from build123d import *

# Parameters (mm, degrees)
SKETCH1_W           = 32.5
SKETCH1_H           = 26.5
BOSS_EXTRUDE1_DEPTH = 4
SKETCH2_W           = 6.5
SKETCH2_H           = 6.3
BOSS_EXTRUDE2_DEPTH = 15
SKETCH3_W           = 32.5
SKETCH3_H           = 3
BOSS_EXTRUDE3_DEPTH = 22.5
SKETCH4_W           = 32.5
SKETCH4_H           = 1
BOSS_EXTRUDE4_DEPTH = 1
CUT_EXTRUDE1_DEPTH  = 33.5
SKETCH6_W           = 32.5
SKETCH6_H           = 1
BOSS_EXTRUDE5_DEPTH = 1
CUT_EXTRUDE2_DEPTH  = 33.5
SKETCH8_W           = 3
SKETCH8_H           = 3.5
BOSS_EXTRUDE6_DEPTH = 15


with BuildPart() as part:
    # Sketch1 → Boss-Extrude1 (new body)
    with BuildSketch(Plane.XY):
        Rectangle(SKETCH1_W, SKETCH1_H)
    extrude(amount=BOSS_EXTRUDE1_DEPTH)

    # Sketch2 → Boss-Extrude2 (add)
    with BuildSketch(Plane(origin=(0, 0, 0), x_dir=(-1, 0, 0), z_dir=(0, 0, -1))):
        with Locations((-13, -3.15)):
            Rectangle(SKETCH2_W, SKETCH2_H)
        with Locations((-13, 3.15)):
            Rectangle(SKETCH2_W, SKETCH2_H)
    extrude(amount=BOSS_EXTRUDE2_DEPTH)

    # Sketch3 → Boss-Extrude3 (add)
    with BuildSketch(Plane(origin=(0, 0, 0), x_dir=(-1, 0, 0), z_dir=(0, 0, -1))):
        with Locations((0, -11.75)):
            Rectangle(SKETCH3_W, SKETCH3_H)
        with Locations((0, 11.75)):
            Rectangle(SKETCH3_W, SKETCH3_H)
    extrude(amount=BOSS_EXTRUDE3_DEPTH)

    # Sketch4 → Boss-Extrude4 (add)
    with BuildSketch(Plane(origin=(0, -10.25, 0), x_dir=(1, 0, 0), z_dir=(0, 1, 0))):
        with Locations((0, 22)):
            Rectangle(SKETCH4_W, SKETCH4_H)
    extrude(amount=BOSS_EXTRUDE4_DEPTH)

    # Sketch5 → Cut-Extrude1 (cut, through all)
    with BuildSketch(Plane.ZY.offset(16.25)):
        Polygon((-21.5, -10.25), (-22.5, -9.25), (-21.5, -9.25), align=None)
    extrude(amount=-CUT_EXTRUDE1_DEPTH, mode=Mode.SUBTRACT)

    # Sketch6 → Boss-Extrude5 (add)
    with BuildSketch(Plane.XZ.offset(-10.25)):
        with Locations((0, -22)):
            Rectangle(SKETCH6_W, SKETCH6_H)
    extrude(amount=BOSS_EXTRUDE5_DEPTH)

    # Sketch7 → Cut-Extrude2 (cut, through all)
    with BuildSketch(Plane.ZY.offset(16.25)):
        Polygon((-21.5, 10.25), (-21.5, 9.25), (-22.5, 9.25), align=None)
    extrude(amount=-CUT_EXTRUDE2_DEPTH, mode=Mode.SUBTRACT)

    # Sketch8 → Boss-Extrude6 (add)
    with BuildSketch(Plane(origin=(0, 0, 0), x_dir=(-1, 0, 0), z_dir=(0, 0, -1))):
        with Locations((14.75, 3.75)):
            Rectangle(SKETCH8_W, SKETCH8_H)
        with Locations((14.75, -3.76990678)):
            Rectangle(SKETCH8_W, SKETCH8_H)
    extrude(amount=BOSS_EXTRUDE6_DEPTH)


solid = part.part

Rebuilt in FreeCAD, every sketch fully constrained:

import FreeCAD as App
import Part
import Sketcher
Q = App.Units.Quantity

doc = App.newDocument("Part")
body = doc.addObject("PartDesign::Body", "Body")

# Sketch on XY plane
sketch1 = body.newObject("Sketcher::SketchObject", "Sketch")
sketch1.AttachmentSupport = (doc.getObject("XY_Plane"), [""])
sketch1.MapMode = "FlatFace"
sketch1.addGeometry([
    Part.LineSegment(App.Vector(-16, 13, 0), App.Vector(-16, -13, 0)),
    Part.LineSegment(App.Vector(-16, -13, 0), App.Vector(16, -13, 0)),
    Part.LineSegment(App.Vector(16, -13, 0), App.Vector(16, 13, 0)),
    Part.LineSegment(App.Vector(16, 13, 0), App.Vector(-16, 13, 0)),
], False)
sketch1.addConstraint([
    Sketcher.Constraint("Coincident", 0, 2, 1, 1),
    Sketcher.Constraint("Coincident", 1, 2, 2, 1),
    Sketcher.Constraint("Coincident", 2, 2, 3, 1),
    Sketcher.Constraint("Coincident", 3, 2, 0, 1),
    Sketcher.Constraint("Vertical", 0),
    Sketcher.Constraint("Horizontal", 1),
    Sketcher.Constraint("Vertical", 2),
    Sketcher.Constraint("Horizontal", 3),
    Sketcher.Constraint("Symmetric", 0, 2, 2, 2, -1, 1),
    Sketcher.Constraint("DistanceX", 1, 1, 1, 2, Q("32.5 mm")),
    Sketcher.Constraint("DistanceY", 0, 2, 0, 1, Q("26.5 mm")),
])
pad1 = body.newObject("PartDesign::Pad", "Pad")
pad1.Profile = sketch1
pad1.Length = 4

# Sketch on XY plane
sketch2 = body.newObject("Sketcher::SketchObject", "Sketch001")
sketch2.AttachmentSupport = (doc.getObject("XY_Plane"), [""])
sketch2.MapMode = "FlatFace"
sketch2.addGeometry([
    Part.LineSegment(App.Vector(16, -6, 0), App.Vector(10, -6, 0)),
    Part.LineSegment(App.Vector(10, -6, 0), App.Vector(10, 6, 0)),
    Part.LineSegment(App.Vector(10, 6, 0), App.Vector(16, 6, 0)),
    Part.LineSegment(App.Vector(16, 6, 0), App.Vector(16, -6, 0)),
], False)
sketch2.addConstraint([
    Sketcher.Constraint("Coincident", 0, 2, 1, 1),
    Sketcher.Constraint("Coincident", 1, 2, 2, 1),
    Sketcher.Constraint("Coincident", 2, 2, 3, 1),
    Sketcher.Constraint("Coincident", 3, 2, 0, 1),
    Sketcher.Constraint("Horizontal", 0),
    Sketcher.Constraint("Vertical", 1),
    Sketcher.Constraint("Horizontal", 2),
    Sketcher.Constraint("Vertical", 3),
    Sketcher.Constraint("DistanceX", 0, 2, 0, 1, Q("6.5 mm")),
    Sketcher.Constraint("DistanceY", 1, 1, 1, 2, Q("12.6 mm")),
    Sketcher.Constraint("DistanceY", 0, 2, -1, 1, Q("6.3 mm")),
    Sketcher.Constraint("DistanceX", -1, 1, 0, 2, Q("9.75 mm")),
])
pad2 = body.newObject("PartDesign::Pad", "Pad001")
pad2.Profile = sketch2
pad2.Length = 15
pad2.Reversed = True

# Sketch on XY plane
sketch3 = body.newObject("Sketcher::SketchObject", "Sketch002")
sketch3.AttachmentSupport = (doc.getObject("XY_Plane"), [""])
sketch3.MapMode = "FlatFace"
sketch3.addGeometry([
    Part.LineSegment(App.Vector(16.2, -10.2, 0), App.Vector(16.2, -13.2, 0)),  # 0
    Part.LineSegment(App.Vector(16.2, -13.2, 0), App.Vector(-16.2, -13.2, 0)),  # 1
    Part.LineSegment(App.Vector(-16.2, -13.2, 0), App.Vector(-16.2, -10.2, 0)),  # 2
    Part.LineSegment(App.Vector(-16.2, -10.2, 0), App.Vector(16.2, -10.2, 0)),  # 3
    Part.LineSegment(App.Vector(16.2, 13.2, 0), App.Vector(16.2, 10.2, 0)),  # 4
    Part.LineSegment(App.Vector(16.2, 10.2, 0), App.Vector(-16.2, 10.2, 0)),  # 5
    Part.LineSegment(App.Vector(-16.2, 10.2, 0), App.Vector(-16.2, 13.2, 0)),  # 6
    Part.LineSegment(App.Vector(-16.2, 13.2, 0), App.Vector(16.2, 13.2, 0)),  # 7
], False)
sketch3.addConstraint([
    Sketcher.Constraint("Coincident", 0, 2, 1, 1),
    Sketcher.Constraint("Coincident", 1, 2, 2, 1),
    Sketcher.Constraint("Coincident", 2, 2, 3, 1),
    Sketcher.Constraint("Coincident", 3, 2, 0, 1),
    Sketcher.Constraint("Coincident", 4, 2, 5, 1),
    Sketcher.Constraint("Coincident", 5, 2, 6, 1),
    Sketcher.Constraint("Coincident", 6, 2, 7, 1),
    Sketcher.Constraint("Coincident", 7, 2, 4, 1),
    Sketcher.Constraint("Vertical", 0),
    Sketcher.Constraint("Horizontal", 1),
    Sketcher.Constraint("Vertical", 2),
    Sketcher.Constraint("Horizontal", 3),
    Sketcher.Constraint("Vertical", 4),
    Sketcher.Constraint("Horizontal", 5),
    Sketcher.Constraint("Vertical", 6),
    Sketcher.Constraint("Horizontal", 7),
    Sketcher.Constraint("Symmetric", 2, 2, 4, 2, -1, 1),
    Sketcher.Constraint("Symmetric", 0, 2, 6, 2, -1, 1),
    Sketcher.Constraint("Vertical", 3, 2, 4, 2),
    Sketcher.Constraint("DistanceY", 0, 2, 0, 1, Q("3 mm")),
    Sketcher.Constraint("DistanceX", 1, 2, 1, 1, Q("32.5 mm")),
    Sketcher.Constraint("DistanceY", 3, 2, 4, 2, Q("20.5 mm")),
])
pad3 = body.newObject("PartDesign::Pad", "Pad002")
pad3.Profile = sketch3
pad3.Length = 22.5
pad3.Reversed = True

# Sketch on XZ plane
sketch4 = body.newObject("Sketcher::SketchObject", "Sketch003")
sketch4.AttachmentSupport = (doc.getObject("XZ_Plane"), [""])
sketch4.MapMode = "FlatFace"
sketch4.AttachmentOffset = App.Placement(App.Vector(0, 0, 10.25), App.Rotation())
sketch4.addGeometry([
    Part.LineSegment(App.Vector(-16.2, -22.5, 0), App.Vector(-16.2, -21.5, 0)),
    Part.LineSegment(App.Vector(-16.2, -21.5, 0), App.Vector(16.2, -21.5, 0)),
    Part.LineSegment(App.Vector(16.2, -21.5, 0), App.Vector(16.2, -22.5, 0)),
    Part.LineSegment(App.Vector(16.2, -22.5, 0), App.Vector(-16.2, -22.5, 0)),
], False)
sketch4.addConstraint([
    Sketcher.Constraint("Coincident", 0, 2, 1, 1),
    Sketcher.Constraint("Coincident", 1, 2, 2, 1),
    Sketcher.Constraint("Coincident", 2, 2, 3, 1),
    Sketcher.Constraint("Coincident", 3, 2, 0, 1),
    Sketcher.Constraint("Vertical", 0),
    Sketcher.Constraint("Horizontal", 1),
    Sketcher.Constraint("Vertical", 2),
    Sketcher.Constraint("Horizontal", 3),
    Sketcher.Constraint("DistanceY", 0, 1, 0, 2, Q("1 mm")),
    Sketcher.Constraint("DistanceX", 1, 1, 1, 2, Q("32.5 mm")),
    Sketcher.Constraint("DistanceY", 0, 2, -1, 1, Q("21.5 mm")),
    Sketcher.Constraint("DistanceX", 0, 2, -1, 1, Q("16.25 mm")),
])
pad4 = body.newObject("PartDesign::Pad", "Pad003")
pad4.Profile = sketch4
pad4.Length = 1
pad4.Reversed = True

# Sketch on YZ plane
sketch5 = body.newObject("Sketcher::SketchObject", "Sketch004")
sketch5.AttachmentSupport = (doc.getObject("YZ_Plane"), [""])
sketch5.MapMode = "FlatFace"
sketch5.AttachmentOffset = App.Placement(App.Vector(0, 0, -16.25), App.Rotation())
sketch5.addGeometry([
    Part.LineSegment(App.Vector(-9.2, -22.5, 0), App.Vector(-10.2, -21.5, 0)),
    Part.LineSegment(App.Vector(-10.2, -21.5, 0), App.Vector(-9.2, -21.5, 0)),
    Part.LineSegment(App.Vector(-9.2, -21.5, 0), App.Vector(-9.2, -22.5, 0)),
], False)
sketch5.addConstraint([
    Sketcher.Constraint("Coincident", 0, 2, 1, 1),
    Sketcher.Constraint("Coincident", 1, 2, 2, 1),
    Sketcher.Constraint("Coincident", 2, 2, 0, 1),
    Sketcher.Constraint("Horizontal", 1),
    Sketcher.Constraint("Vertical", 2),
    Sketcher.Constraint("Equal", 1, 2),
    Sketcher.Constraint("DistanceX", 1, 1, 1, 2, Q("1 mm")),
    Sketcher.Constraint("DistanceY", 0, 2, -1, 1, Q("21.5 mm")),
    Sketcher.Constraint("DistanceX", 0, 2, -1, 1, Q("10.25 mm")),
])
pocket1 = body.newObject("PartDesign::Pocket", "Pocket")
pocket1.Profile = sketch5
pocket1.Type = "ThroughAll"
pocket1.Reversed = True

# Sketch on XZ plane
sketch6 = body.newObject("Sketcher::SketchObject", "Sketch005")
sketch6.AttachmentSupport = (doc.getObject("XZ_Plane"), [""])
sketch6.MapMode = "FlatFace"
sketch6.AttachmentOffset = App.Placement(App.Vector(0, 0, -10.25), App.Rotation())
sketch6.addGeometry([
    Part.LineSegment(App.Vector(-16.2, -21.5, 0), App.Vector(-16.2, -22.5, 0)),
    Part.LineSegment(App.Vector(-16.2, -22.5, 0), App.Vector(16.2, -22.5, 0)),
    Part.LineSegment(App.Vector(16.2, -22.5, 0), App.Vector(16.2, -21.5, 0)),
    Part.LineSegment(App.Vector(16.2, -21.5, 0), App.Vector(-16.2, -21.5, 0)),
], False)
sketch6.addConstraint([
    Sketcher.Constraint("Coincident", 0, 2, 1, 1),
    Sketcher.Constraint("Coincident", 1, 2, 2, 1),
    Sketcher.Constraint("Coincident", 2, 2, 3, 1),
    Sketcher.Constraint("Coincident", 3, 2, 0, 1),
    Sketcher.Constraint("Vertical", 0),
    Sketcher.Constraint("Horizontal", 1),
    Sketcher.Constraint("Vertical", 2),
    Sketcher.Constraint("Horizontal", 3),
    Sketcher.Constraint("DistanceY", 0, 2, 0, 1, Q("1 mm")),
    Sketcher.Constraint("DistanceX", 1, 1, 1, 2, Q("32.5 mm")),
    Sketcher.Constraint("DistanceY", 0, 2, -1, 1, Q("22.5 mm")),
    Sketcher.Constraint("DistanceX", 0, 2, -1, 1, Q("16.25 mm")),
])
pad5 = body.newObject("PartDesign::Pad", "Pad004")
pad5.Profile = sketch6
pad5.Length = 1

# Sketch on YZ plane
sketch7 = body.newObject("Sketcher::SketchObject", "Sketch006")
sketch7.AttachmentSupport = (doc.getObject("YZ_Plane"), [""])
sketch7.MapMode = "FlatFace"
sketch7.AttachmentOffset = App.Placement(App.Vector(0, 0, -16.25), App.Rotation())
sketch7.addGeometry([
    Part.LineSegment(App.Vector(9.2, -21.5, 0), App.Vector(10.2, -21.5, 0)),
    Part.LineSegment(App.Vector(10.2, -21.5, 0), App.Vector(9.2, -22.5, 0)),
    Part.LineSegment(App.Vector(9.2, -22.5, 0), App.Vector(9.2, -21.5, 0)),
], False)
sketch7.addConstraint([
    Sketcher.Constraint("Coincident", 0, 2, 1, 1),
    Sketcher.Constraint("Coincident", 1, 2, 2, 1),
    Sketcher.Constraint("Coincident", 2, 2, 0, 1),
    Sketcher.Constraint("Horizontal", 0),
    Sketcher.Constraint("Vertical", 2),
    Sketcher.Constraint("Equal", 0, 2),
    Sketcher.Constraint("DistanceX", 0, 1, 0, 2, Q("1 mm")),
    Sketcher.Constraint("DistanceY", 0, 2, -1, 1, Q("21.5 mm")),
    Sketcher.Constraint("DistanceX", -1, 1, 0, 2, Q("10.25 mm")),
])
pocket2 = body.newObject("PartDesign::Pocket", "Pocket001")
pocket2.Profile = sketch7
pocket2.Type = "ThroughAll"
pocket2.Reversed = True

# Sketch on XY plane
sketch8 = body.newObject("Sketcher::SketchObject", "Sketch007")
sketch8.AttachmentSupport = (doc.getObject("XY_Plane"), [""])
sketch8.MapMode = "FlatFace"
sketch8.addGeometry([
    Part.LineSegment(App.Vector(-13.2, 5.5, 0), App.Vector(-13.2, 2, 0)),  # 0
    Part.LineSegment(App.Vector(-13.2, 2, 0), App.Vector(-16.2, 2, 0)),  # 1
    Part.LineSegment(App.Vector(-16.2, 2, 0), App.Vector(-16.2, 5.5, 0)),  # 2
    Part.LineSegment(App.Vector(-16.2, 5.5, 0), App.Vector(-13.2, 5.5, 0)),  # 3
    Part.LineSegment(App.Vector(-13.2, -2, 0), App.Vector(-13.2, -5.5, 0)),  # 4
    Part.LineSegment(App.Vector(-13.2, -5.5, 0), App.Vector(-16.2, -5.5, 0)),  # 5
    Part.LineSegment(App.Vector(-16.2, -5.5, 0), App.Vector(-16.2, -2, 0)),  # 6
    Part.LineSegment(App.Vector(-16.2, -2, 0), App.Vector(-13.2, -2, 0)),  # 7
], False)
sketch8.addConstraint([
    Sketcher.Constraint("Coincident", 0, 2, 1, 1),
    Sketcher.Constraint("Coincident", 1, 2, 2, 1),
    Sketcher.Constraint("Coincident", 2, 2, 3, 1),
    Sketcher.Constraint("Coincident", 3, 2, 0, 1),
    Sketcher.Constraint("Coincident", 4, 2, 5, 1),
    Sketcher.Constraint("Coincident", 5, 2, 6, 1),
    Sketcher.Constraint("Coincident", 6, 2, 7, 1),
    Sketcher.Constraint("Coincident", 7, 2, 4, 1),
    Sketcher.Constraint("Vertical", 0),
    Sketcher.Constraint("Horizontal", 1),
    Sketcher.Constraint("Vertical", 2),
    Sketcher.Constraint("Horizontal", 3),
    Sketcher.Constraint("Vertical", 4),
    Sketcher.Constraint("Horizontal", 5),
    Sketcher.Constraint("Vertical", 6),
    Sketcher.Constraint("Horizontal", 7),
    Sketcher.Constraint("Vertical", 3, 2, 4, 2),
    Sketcher.Constraint("Vertical", 2, 2, 5, 2),
    Sketcher.Constraint("Equal", 2, 4),
    Sketcher.Constraint("DistanceX", 1, 2, 1, 1, Q("3 mm")),
    Sketcher.Constraint("DistanceY", 0, 2, 0, 1, Q("3.5 mm")),
    Sketcher.Constraint("DistanceY", -1, 1, 0, 2, Q("2 mm")),
    Sketcher.Constraint("DistanceX", 0, 2, -1, 1, Q("13.25 mm")),
    Sketcher.Constraint("DistanceY", 4, 2, -1, 1, Q("5.519907 mm")),
])
pad6 = body.newObject("PartDesign::Pad", "Pad005")
pad6.Profile = sketch8
pad6.Length = 15
pad6.Reversed = True

doc.recompute()
